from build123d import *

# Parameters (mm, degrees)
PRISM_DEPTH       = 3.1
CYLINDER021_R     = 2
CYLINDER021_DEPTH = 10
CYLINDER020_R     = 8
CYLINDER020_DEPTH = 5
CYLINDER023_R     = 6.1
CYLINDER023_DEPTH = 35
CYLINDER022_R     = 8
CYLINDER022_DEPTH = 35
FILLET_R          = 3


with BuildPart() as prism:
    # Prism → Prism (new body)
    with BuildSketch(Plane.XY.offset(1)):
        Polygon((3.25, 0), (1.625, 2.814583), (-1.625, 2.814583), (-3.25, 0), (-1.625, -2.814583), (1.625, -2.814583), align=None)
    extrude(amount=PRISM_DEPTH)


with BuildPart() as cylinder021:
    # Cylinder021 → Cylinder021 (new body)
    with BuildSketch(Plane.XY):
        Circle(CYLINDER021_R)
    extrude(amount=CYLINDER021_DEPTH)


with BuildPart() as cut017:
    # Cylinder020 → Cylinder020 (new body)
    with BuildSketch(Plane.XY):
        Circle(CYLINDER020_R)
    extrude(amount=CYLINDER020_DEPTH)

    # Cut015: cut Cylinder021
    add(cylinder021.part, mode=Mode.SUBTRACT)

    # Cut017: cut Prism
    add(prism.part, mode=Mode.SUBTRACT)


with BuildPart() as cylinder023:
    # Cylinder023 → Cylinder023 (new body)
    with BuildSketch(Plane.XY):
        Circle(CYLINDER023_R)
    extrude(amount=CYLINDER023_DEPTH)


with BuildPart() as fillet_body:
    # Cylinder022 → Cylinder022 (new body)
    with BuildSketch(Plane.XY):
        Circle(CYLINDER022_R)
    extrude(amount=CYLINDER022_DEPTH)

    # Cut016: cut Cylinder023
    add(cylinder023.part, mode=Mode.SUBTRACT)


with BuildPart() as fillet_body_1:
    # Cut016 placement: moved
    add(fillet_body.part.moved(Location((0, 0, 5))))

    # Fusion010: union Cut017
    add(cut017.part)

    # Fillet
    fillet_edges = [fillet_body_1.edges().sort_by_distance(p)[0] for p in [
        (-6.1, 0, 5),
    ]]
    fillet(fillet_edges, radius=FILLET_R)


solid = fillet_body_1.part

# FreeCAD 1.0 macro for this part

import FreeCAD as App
import Part
import Sketcher

V = App.Vector
Q = App.Units.Quantity


def edges_at(feature, points):
    """Names of the edges that pass closest to the given points."""
    edges = feature.Shape.Edges
    near = lambda p: min(range(len(edges)), key=lambda i: edges[i].distToShape(Part.Vertex(*p))[0])
    return sorted({f"Edge{near(p) + 1}" for p in points})

doc = App.newDocument("Part")
body = doc.addObject("PartDesign::Body", "Body")

# Sketch on XY plane
sketch1 = body.newObject("Sketcher::SketchObject", "Sketch")
sketch1.AttachmentSupport = (doc.getObject("XY_Plane"), [""])
sketch1.MapMode = "FlatFace"
sketch1.AttachmentOffset = App.Placement(V(0, 0, 1), App.Rotation())
sketch1.addGeometry([
    Part.LineSegment(V(3.25, 0, 0), V(1.625, 2.814583, 0)),  # 0
    Part.LineSegment(V(1.625, 2.814583, 0), V(-1.625, 2.814583, 0)),  # 1
    Part.LineSegment(V(-1.625, 2.814583, 0), V(-3.25, 0, 0)),  # 2
    Part.LineSegment(V(-3.25, 0, 0), V(-1.625, -2.814583, 0)),  # 3
    Part.LineSegment(V(-1.625, -2.814583, 0), V(1.625, -2.814583, 0)),  # 4
    Part.LineSegment(V(1.625, -2.814583, 0), V(3.25, 0, 0)),  # 5
], False)
sketch1.addConstraint([
    Sketcher.Constraint("Coincident", 0, 2, 1, 1),
    Sketcher.Constraint("Coincident", 1, 2, 2, 1),
    Sketcher.Constraint("Coincident", 2, 2, 3, 1),
    Sketcher.Constraint("Coincident", 3, 2, 4, 1),
    Sketcher.Constraint("Coincident", 4, 2, 5, 1),
    Sketcher.Constraint("Coincident", 5, 2, 0, 1),
    Sketcher.Constraint("Horizontal", 1),
    Sketcher.Constraint("Horizontal", 4),
    Sketcher.Constraint("Symmetric", 0, 2, 3, 2, -1, 1),
    Sketcher.Constraint("Symmetric", 2, 2, 5, 2, -1, 1),
    Sketcher.Constraint("PointOnObject", 2, 2, -1),
    Sketcher.Constraint("Parallel", 2, 5),
    Sketcher.Constraint("Vertical", 1, 2, 3, 2),
    Sketcher.Constraint("Angle", 0, Q("119.999996 deg")),
    Sketcher.Constraint("DistanceX", 1, 2, 1, 1, 3.25),
    Sketcher.Constraint("DistanceX", 2, 2, 5, 2, 6.5),
])
pad1 = body.newObject("PartDesign::Pad", "Pad")
pad1.Profile = sketch1
pad1.Length = 3.1
body2 = doc.addObject("PartDesign::Body", "Body001")

# Sketch on XY plane
sketch2 = body2.newObject("Sketcher::SketchObject", "Sketch001")
sketch2.AttachmentSupport = (doc.getObject("XY_Plane001"), [""])
sketch2.MapMode = "FlatFace"
sketch2.addGeometry(Part.Circle(V(0, 0, 0), V(0, 0, 1), 2), False)
sketch2.addConstraint([
    Sketcher.Constraint("Coincident", 0, 3, -1, 1),
    Sketcher.Constraint("Diameter", 0, 4.0),
])
pad2 = body2.newObject("PartDesign::Pad", "Pad001")
pad2.Profile = sketch2
pad2.Length = 10
body3 = doc.addObject("PartDesign::Body", "Body002")

# Sketch on XY plane
sketch3 = body3.newObject("Sketcher::SketchObject", "Sketch002")
sketch3.AttachmentSupport = (doc.getObject("XY_Plane002"), [""])
sketch3.MapMode = "FlatFace"
sketch3.addGeometry(Part.Circle(V(0, 0, 0), V(0, 0, 1), 8), False)
sketch3.addConstraint([
    Sketcher.Constraint("Coincident", 0, 3, -1, 1),
    Sketcher.Constraint("Diameter", 0, 16.0),
])
pad3 = body3.newObject("PartDesign::Pad", "Pad002")
pad3.Profile = sketch3
pad3.Length = 5
doc.recompute()

boolean = body3.newObject("PartDesign::Boolean", "Boolean")
boolean.Type = "Cut"
boolean.addObjects([body2])
doc.recompute()

boolean2 = body3.newObject("PartDesign::Boolean", "Boolean001")
boolean2.Type = "Cut"
boolean2.addObjects([body])
body4 = doc.addObject("PartDesign::Body", "Body003")

# Sketch on XY plane
sketch4 = body4.newObject("Sketcher::SketchObject", "Sketch003")
sketch4.AttachmentSupport = (doc.getObject("XY_Plane003"), [""])
sketch4.MapMode = "FlatFace"
sketch4.addGeometry(Part.Circle(V(0, 0, 0), V(0, 0, 1), 6.1), False)
sketch4.addConstraint([
    Sketcher.Constraint("Coincident", 0, 3, -1, 1),
    Sketcher.Constraint("Diameter", 0, 12.2),
])
pad4 = body4.newObject("PartDesign::Pad", "Pad003")
pad4.Profile = sketch4
pad4.Length = 35
body5 = doc.addObject("PartDesign::Body", "Body004")

# Sketch on XY plane
sketch5 = body5.newObject("Sketcher::SketchObject", "Sketch004")
sketch5.AttachmentSupport = (doc.getObject("XY_Plane004"), [""])
sketch5.MapMode = "FlatFace"
sketch5.addGeometry(Part.Circle(V(0, 0, 0), V(0, 0, 1), 8), False)
sketch5.addConstraint([
    Sketcher.Constraint("Coincident", 0, 3, -1, 1),
    Sketcher.Constraint("Diameter", 0, 16.0),
])
pad5 = body5.newObject("PartDesign::Pad", "Pad004")
pad5.Profile = sketch5
pad5.Length = 35
doc.recompute()

boolean3 = body5.newObject("PartDesign::Boolean", "Boolean002")
boolean3.Type = "Cut"
boolean3.addObjects([body4])
body6 = doc.addObject("PartDesign::Body", "Body005")
doc.recompute()

body5.Placement = App.Placement(V(0, 0, 5), App.Rotation(V(0, 0, 1), 0))
boolean4 = body6.newObject("PartDesign::Boolean", "Boolean003")
boolean4.Type = "Fuse"
boolean4.addObjects([body5])
doc.recompute()

boolean5 = body6.newObject("PartDesign::Boolean", "Boolean004")
boolean5.Type = "Fuse"
boolean5.addObjects([body3])
doc.recompute()

fillet = body6.newObject("PartDesign::Fillet", "Fillet")
fillet.Base = (boolean5, edges_at(boolean5, [(-6.1, 0, 5)]))
fillet.Radius = 3

doc.recompute()
